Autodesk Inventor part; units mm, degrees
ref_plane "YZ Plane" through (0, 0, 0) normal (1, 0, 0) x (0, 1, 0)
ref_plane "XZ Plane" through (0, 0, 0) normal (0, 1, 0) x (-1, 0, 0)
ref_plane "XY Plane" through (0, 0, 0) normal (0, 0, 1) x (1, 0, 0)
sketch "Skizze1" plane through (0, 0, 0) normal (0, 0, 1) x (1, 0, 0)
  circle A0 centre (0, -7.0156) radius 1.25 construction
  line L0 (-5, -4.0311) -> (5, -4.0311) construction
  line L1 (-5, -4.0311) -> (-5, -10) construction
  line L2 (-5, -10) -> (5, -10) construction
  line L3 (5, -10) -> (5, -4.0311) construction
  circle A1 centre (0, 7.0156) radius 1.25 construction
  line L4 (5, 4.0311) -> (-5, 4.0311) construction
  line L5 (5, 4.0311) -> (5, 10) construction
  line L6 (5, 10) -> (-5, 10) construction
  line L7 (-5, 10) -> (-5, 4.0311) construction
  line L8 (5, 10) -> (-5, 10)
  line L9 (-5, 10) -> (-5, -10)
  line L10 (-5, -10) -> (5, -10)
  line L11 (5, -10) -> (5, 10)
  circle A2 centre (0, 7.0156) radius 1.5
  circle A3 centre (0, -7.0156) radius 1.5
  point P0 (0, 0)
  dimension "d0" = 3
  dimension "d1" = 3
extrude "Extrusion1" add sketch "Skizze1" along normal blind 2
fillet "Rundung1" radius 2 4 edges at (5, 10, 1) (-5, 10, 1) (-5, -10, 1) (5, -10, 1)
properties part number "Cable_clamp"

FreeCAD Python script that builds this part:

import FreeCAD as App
import Part
import Sketcher
Q = App.Units.Quantity


def edges_at(feature, points):
    """Names of the edges that pass closest to the given points."""
    edges = feature.Shape.Edges
    near = lambda p: min(range(len(edges)), key=lambda i: edges[i].distToShape(Part.Vertex(*p))[0])
    return sorted({f"Edge{near(p) + 1}" for p in points})

doc = App.newDocument("Part")
params = doc.addObject("Spreadsheet::Sheet", "Params")
for row, (alias, value) in enumerate([
    ("sketch1_diameter", "3 mm"),
    ("sketch1_width", "10 mm"),
    ("sketch1_height", "20 mm"),
    ("pad1_length", "2 mm"),
    ("fillet_radius", "2 mm"),
], start=1):
    params.set(f"A{row}", alias)
    params.set(f"B{row}", "=" + value)
    params.setAlias(f"B{row}", alias)

body = doc.addObject("PartDesign::Body", "Body")

sketch1 = body.newObject("Sketcher::SketchObject", "Sketch")
sketch1.AttachmentSupport = (doc.getObject("XY_Plane"), [""])
sketch1.MapMode = "FlatFace"
sketch1.addGeometry([
    Part.LineSegment(App.Vector(5, -10, 0), App.Vector(5, 10, 0)),
    Part.LineSegment(App.Vector(5, 10, 0), App.Vector(-5, 10, 0)),
    Part.LineSegment(App.Vector(-5, 10, 0), App.Vector(-5, -10, 0)),
    Part.LineSegment(App.Vector(-5, -10, 0), App.Vector(5, -10, 0)),
    Part.Circle(App.Vector(0, -7, 0), App.Vector(0, 0, 1), 1.5),
    Part.Circle(App.Vector(0, 7, 0), App.Vector(0, 0, 1), 1.5),
], False)
sketch1.addConstraint([
    Sketcher.Constraint("Coincident", 0, 2, 1, 1),
    Sketcher.Constraint("Coincident", 1, 2, 2, 1),
    Sketcher.Constraint("Coincident", 2, 2, 3, 1),
    Sketcher.Constraint("Coincident", 3, 2, 0, 1),
    Sketcher.Constraint("Vertical", 0),
    Sketcher.Constraint("Horizontal", 1),
    Sketcher.Constraint("Vertical", 2),
    Sketcher.Constraint("Horizontal", 3),
    Sketcher.Constraint("Equal", 4, 5),
    Sketcher.Constraint("Symmetric", 4, 3, 5, 3, -1, 1),
    Sketcher.Constraint("Symmetric", 0, 2, 2, 2, -1, 1),
    Sketcher.Constraint("PointOnObject", 4, 3, -2),
    Sketcher.Constraint("Diameter", 4, Q("3 mm")),
    Sketcher.Constraint("DistanceX", 1, 2, 1, 1, Q("10 mm")),
    Sketcher.Constraint("DistanceY", 0, 1, 0, 2, Q("20 mm")),
    Sketcher.Constraint("DistanceY", 4, 3, -1, 1, Q("7.0156 mm")),
])
sketch1.setExpression("Constraints[12]", "Params.sketch1_diameter")
sketch1.setExpression("Constraints[13]", "Params.sketch1_width")
sketch1.setExpression("Constraints[14]", "Params.sketch1_height")
pad1 = body.newObject("PartDesign::Pad", "Pad")
pad1.Profile = sketch1
pad1.setExpression("Length", "Params.pad1_length")
doc.recompute()

fillet = body.newObject("PartDesign::Fillet", "Fillet")
fillet.Base = (pad1, edges_at(pad1, [
    (5, 10, 1),
    (-5, 10, 1),
    (-5, -10, 1),
    (5, -10, 1),
]))
fillet.setExpression("Radius", "Params.fillet_radius")

doc.recompute()
